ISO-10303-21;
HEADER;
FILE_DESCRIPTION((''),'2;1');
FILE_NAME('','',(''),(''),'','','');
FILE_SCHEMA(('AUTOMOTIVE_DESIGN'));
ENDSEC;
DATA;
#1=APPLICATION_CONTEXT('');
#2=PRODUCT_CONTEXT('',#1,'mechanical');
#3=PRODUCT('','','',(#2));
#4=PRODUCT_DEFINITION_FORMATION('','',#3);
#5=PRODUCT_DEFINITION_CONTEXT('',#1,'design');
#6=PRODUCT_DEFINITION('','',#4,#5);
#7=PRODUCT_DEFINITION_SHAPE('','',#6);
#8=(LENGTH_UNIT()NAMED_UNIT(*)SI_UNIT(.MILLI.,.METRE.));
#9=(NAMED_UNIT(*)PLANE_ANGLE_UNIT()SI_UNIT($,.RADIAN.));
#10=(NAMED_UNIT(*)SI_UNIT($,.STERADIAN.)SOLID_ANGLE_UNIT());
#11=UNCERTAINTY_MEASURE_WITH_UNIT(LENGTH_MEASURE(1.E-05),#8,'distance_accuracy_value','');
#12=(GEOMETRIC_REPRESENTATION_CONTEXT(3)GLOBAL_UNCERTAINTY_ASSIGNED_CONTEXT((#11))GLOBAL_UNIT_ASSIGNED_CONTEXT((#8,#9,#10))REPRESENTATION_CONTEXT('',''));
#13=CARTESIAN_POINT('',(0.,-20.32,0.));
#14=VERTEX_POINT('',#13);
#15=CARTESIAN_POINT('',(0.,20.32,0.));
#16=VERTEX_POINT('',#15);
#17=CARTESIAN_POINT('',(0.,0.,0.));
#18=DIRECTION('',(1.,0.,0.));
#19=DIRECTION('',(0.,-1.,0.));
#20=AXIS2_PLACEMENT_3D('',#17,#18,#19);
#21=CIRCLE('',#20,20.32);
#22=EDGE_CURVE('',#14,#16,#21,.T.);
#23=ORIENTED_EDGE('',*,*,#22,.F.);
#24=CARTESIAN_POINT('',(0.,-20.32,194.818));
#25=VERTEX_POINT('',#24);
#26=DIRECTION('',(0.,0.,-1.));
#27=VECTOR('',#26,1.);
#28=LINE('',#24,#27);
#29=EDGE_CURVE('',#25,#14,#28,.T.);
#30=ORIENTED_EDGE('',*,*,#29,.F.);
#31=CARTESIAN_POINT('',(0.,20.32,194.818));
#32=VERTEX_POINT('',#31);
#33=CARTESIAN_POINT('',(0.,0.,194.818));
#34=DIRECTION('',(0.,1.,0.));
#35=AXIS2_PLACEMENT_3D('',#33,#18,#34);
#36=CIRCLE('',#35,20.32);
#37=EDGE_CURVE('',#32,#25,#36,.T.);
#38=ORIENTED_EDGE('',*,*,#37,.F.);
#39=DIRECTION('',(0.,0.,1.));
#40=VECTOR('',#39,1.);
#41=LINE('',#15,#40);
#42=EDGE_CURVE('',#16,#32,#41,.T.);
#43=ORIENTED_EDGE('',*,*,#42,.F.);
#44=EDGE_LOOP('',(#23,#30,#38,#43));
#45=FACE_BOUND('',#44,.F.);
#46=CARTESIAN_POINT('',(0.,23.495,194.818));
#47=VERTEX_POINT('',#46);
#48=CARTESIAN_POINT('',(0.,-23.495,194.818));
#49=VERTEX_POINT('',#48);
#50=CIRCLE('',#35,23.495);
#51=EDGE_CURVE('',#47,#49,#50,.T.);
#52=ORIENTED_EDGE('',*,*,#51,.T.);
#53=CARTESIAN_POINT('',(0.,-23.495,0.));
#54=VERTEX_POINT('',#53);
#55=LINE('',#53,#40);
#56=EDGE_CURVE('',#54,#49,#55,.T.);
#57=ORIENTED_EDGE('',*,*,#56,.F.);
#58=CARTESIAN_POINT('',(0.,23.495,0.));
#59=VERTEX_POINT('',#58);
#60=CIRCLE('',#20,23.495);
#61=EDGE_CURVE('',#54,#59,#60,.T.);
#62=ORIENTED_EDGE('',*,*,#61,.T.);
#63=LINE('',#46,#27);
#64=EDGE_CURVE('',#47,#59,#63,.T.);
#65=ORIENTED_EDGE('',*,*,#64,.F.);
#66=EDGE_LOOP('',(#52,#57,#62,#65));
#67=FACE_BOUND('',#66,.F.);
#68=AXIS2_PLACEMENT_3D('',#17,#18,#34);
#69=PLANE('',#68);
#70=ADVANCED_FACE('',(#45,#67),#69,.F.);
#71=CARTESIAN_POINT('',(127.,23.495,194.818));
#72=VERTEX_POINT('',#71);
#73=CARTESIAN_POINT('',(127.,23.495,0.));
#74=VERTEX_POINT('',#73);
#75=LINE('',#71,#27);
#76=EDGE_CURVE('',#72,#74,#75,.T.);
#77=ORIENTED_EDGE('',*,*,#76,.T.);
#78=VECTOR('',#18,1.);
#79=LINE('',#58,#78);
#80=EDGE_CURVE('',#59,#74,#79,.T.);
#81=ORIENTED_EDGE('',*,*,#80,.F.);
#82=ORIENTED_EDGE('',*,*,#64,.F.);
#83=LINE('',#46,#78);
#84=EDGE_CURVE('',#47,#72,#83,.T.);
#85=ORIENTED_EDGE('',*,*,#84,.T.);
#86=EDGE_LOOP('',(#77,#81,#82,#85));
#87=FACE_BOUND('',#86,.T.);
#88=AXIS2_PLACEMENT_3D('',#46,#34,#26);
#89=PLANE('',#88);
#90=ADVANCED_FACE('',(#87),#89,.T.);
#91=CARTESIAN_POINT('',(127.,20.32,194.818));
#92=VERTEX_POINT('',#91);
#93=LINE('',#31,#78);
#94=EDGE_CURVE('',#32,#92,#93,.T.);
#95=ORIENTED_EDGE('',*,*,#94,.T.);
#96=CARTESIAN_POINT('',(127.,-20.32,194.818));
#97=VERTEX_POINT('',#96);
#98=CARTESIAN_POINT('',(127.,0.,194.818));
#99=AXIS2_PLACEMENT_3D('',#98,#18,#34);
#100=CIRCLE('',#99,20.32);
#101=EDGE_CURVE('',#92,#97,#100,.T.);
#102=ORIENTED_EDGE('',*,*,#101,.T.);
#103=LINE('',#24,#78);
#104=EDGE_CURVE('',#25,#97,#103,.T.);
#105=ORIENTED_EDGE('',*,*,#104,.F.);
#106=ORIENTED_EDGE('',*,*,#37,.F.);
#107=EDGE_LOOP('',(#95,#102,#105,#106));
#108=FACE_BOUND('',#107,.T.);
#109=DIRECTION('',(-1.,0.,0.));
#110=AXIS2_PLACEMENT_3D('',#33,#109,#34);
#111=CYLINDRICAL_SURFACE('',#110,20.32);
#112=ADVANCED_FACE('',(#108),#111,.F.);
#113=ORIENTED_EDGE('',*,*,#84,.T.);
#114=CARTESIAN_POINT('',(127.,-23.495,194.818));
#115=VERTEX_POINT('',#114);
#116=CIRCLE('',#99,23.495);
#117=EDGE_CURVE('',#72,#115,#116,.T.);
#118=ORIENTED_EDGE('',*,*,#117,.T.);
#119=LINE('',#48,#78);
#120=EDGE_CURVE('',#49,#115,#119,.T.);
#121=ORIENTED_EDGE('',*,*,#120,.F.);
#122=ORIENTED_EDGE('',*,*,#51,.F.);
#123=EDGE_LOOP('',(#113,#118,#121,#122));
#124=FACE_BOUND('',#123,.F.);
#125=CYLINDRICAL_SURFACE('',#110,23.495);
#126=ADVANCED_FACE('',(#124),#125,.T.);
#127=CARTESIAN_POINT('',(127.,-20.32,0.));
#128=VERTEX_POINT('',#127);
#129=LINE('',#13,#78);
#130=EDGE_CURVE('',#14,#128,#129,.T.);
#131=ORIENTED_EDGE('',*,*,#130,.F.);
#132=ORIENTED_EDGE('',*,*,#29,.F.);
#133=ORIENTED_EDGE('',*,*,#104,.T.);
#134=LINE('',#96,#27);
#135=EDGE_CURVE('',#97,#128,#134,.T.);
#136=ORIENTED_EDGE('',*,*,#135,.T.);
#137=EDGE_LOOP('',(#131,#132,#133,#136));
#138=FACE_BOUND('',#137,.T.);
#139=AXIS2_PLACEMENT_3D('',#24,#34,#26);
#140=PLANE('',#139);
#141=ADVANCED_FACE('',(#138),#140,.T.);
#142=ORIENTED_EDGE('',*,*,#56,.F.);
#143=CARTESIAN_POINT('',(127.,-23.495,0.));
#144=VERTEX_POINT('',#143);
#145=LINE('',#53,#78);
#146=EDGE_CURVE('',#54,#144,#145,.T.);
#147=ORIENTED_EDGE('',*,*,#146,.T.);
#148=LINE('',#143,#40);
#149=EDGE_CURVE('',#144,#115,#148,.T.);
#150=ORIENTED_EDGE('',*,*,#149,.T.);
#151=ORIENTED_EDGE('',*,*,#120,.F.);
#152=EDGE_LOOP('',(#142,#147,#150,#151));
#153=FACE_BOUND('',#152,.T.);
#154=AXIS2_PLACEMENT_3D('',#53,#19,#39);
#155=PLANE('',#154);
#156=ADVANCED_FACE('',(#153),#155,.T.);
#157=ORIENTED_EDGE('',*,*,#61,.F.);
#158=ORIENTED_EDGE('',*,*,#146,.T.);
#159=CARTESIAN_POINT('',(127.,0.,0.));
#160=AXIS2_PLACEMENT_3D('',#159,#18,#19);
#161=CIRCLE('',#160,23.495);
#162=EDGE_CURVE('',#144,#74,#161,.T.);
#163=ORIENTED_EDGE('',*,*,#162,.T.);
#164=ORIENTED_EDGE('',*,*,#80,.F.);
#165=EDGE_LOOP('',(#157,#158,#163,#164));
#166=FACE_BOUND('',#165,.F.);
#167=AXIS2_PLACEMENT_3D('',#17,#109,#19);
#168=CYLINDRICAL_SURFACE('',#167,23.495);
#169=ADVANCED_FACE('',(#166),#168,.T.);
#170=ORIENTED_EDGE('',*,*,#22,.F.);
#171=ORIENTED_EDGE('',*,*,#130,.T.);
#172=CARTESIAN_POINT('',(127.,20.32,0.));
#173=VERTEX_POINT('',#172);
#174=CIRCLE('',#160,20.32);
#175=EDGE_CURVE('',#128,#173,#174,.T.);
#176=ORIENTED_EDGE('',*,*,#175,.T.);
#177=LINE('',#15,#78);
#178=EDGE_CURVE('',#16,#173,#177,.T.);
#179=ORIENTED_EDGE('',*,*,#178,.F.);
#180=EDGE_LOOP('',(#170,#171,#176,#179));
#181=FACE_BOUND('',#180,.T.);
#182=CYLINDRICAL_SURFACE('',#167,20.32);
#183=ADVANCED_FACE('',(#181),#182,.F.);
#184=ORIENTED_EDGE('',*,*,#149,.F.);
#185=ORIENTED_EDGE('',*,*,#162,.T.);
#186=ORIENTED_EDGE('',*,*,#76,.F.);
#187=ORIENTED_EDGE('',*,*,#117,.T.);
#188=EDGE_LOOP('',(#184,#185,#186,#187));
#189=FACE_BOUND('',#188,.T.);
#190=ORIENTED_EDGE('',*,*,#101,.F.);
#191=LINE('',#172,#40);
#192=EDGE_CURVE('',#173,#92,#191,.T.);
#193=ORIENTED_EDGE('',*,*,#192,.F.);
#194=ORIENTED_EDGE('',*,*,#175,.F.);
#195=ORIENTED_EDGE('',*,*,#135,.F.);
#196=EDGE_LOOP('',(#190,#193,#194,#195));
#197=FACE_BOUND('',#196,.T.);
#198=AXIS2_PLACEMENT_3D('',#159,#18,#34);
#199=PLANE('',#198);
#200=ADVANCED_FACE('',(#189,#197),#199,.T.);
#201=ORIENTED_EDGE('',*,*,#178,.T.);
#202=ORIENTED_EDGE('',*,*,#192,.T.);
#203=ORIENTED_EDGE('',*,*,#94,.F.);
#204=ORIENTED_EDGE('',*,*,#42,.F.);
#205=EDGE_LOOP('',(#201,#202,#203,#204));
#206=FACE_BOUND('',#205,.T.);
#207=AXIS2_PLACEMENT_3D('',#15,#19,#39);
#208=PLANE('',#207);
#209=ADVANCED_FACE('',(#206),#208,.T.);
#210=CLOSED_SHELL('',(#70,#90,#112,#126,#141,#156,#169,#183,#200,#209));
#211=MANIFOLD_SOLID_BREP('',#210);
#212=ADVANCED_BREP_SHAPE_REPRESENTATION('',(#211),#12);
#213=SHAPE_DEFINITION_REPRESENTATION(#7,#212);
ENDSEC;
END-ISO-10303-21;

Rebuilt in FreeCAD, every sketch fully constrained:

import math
import FreeCAD as App
import Part
import Sketcher
Q = App.Units.Quantity

doc = App.newDocument("Part")
body = doc.addObject("PartDesign::Body", "Body")

# Sketch on YZ plane
sketch1 = body.newObject("Sketcher::SketchObject", "Sketch")
sketch1.AttachmentSupport = (doc.getObject("YZ_Plane"), [""])
sketch1.MapMode = "FlatFace"
sketch1.addGeometry([
    Part.LineSegment(App.Vector(23.495, 0, 0), App.Vector(23.495, 194.818, 0)),  # 0
    Part.ArcOfCircle(Part.Circle(App.Vector(0, 194.818, 0), App.Vector(0, 0, 1), 23.495), math.radians(0), math.radians(180)),  # 1
    Part.LineSegment(App.Vector(-23.495, 194.818, 0), App.Vector(-23.495, 0, 0)),  # 2
    Part.ArcOfCircle(Part.Circle(App.Vector(0, 0, 0), App.Vector(0, 0, 1), 23.495), math.radians(180), math.radians(360)),  # 3
    Part.LineSegment(App.Vector(20.32, 194.818, 0), App.Vector(20.32, 0, 0)),  # 4
    Part.ArcOfCircle(Part.Circle(App.Vector(0, 0, 0), App.Vector(0, 0, 1), 20.32), math.radians(180), math.radians(360)),  # 5
    Part.LineSegment(App.Vector(-20.32, 0, 0), App.Vector(-20.32, 194.818, 0)),  # 6
    Part.ArcOfCircle(Part.Circle(App.Vector(0, 194.818, 0), App.Vector(0, 0, 1), 20.32), math.radians(0), math.radians(180)),  # 7
], False)
sketch1.addConstraint([
    Sketcher.Constraint("Tangent", 0, 2, 1, 1),
    Sketcher.Constraint("Tangent", 1, 2, 2, 1),
    Sketcher.Constraint("Tangent", 2, 2, 3, 1),
    Sketcher.Constraint("Tangent", 3, 2, 0, 1),
    Sketcher.Constraint("Tangent", 4, 2, 5, 2),
    Sketcher.Constraint("Tangent", 5, 1, 6, 1),
    Sketcher.Constraint("Tangent", 6, 2, 7, 2),
    Sketcher.Constraint("Tangent", 7, 1, 4, 1),
    Sketcher.Constraint("Vertical", 0),
    Sketcher.Constraint("Vertical", 2),
    Sketcher.Constraint("Vertical", 4),
    Sketcher.Constraint("Vertical", 6),
    Sketcher.Constraint("Coincident", 3, 3, -1, 1),
    Sketcher.Constraint("Coincident", 5, 3, -1, 1),
    Sketcher.Constraint("Horizontal", 7, 3, 0, 2),
    Sketcher.Constraint("Radius", 5, Q("0.8 in")),
    Sketcher.Constraint("DistanceY", 0, 1, 0, 2, Q("7.67 in")),
    Sketcher.Constraint("Radius", 1, Q("0.925 in")),
])
pad1 = body.newObject("PartDesign::Pad", "Pad")
pad1.Profile = sketch1
pad1.Length = Q("5 in")

doc.recompute()
